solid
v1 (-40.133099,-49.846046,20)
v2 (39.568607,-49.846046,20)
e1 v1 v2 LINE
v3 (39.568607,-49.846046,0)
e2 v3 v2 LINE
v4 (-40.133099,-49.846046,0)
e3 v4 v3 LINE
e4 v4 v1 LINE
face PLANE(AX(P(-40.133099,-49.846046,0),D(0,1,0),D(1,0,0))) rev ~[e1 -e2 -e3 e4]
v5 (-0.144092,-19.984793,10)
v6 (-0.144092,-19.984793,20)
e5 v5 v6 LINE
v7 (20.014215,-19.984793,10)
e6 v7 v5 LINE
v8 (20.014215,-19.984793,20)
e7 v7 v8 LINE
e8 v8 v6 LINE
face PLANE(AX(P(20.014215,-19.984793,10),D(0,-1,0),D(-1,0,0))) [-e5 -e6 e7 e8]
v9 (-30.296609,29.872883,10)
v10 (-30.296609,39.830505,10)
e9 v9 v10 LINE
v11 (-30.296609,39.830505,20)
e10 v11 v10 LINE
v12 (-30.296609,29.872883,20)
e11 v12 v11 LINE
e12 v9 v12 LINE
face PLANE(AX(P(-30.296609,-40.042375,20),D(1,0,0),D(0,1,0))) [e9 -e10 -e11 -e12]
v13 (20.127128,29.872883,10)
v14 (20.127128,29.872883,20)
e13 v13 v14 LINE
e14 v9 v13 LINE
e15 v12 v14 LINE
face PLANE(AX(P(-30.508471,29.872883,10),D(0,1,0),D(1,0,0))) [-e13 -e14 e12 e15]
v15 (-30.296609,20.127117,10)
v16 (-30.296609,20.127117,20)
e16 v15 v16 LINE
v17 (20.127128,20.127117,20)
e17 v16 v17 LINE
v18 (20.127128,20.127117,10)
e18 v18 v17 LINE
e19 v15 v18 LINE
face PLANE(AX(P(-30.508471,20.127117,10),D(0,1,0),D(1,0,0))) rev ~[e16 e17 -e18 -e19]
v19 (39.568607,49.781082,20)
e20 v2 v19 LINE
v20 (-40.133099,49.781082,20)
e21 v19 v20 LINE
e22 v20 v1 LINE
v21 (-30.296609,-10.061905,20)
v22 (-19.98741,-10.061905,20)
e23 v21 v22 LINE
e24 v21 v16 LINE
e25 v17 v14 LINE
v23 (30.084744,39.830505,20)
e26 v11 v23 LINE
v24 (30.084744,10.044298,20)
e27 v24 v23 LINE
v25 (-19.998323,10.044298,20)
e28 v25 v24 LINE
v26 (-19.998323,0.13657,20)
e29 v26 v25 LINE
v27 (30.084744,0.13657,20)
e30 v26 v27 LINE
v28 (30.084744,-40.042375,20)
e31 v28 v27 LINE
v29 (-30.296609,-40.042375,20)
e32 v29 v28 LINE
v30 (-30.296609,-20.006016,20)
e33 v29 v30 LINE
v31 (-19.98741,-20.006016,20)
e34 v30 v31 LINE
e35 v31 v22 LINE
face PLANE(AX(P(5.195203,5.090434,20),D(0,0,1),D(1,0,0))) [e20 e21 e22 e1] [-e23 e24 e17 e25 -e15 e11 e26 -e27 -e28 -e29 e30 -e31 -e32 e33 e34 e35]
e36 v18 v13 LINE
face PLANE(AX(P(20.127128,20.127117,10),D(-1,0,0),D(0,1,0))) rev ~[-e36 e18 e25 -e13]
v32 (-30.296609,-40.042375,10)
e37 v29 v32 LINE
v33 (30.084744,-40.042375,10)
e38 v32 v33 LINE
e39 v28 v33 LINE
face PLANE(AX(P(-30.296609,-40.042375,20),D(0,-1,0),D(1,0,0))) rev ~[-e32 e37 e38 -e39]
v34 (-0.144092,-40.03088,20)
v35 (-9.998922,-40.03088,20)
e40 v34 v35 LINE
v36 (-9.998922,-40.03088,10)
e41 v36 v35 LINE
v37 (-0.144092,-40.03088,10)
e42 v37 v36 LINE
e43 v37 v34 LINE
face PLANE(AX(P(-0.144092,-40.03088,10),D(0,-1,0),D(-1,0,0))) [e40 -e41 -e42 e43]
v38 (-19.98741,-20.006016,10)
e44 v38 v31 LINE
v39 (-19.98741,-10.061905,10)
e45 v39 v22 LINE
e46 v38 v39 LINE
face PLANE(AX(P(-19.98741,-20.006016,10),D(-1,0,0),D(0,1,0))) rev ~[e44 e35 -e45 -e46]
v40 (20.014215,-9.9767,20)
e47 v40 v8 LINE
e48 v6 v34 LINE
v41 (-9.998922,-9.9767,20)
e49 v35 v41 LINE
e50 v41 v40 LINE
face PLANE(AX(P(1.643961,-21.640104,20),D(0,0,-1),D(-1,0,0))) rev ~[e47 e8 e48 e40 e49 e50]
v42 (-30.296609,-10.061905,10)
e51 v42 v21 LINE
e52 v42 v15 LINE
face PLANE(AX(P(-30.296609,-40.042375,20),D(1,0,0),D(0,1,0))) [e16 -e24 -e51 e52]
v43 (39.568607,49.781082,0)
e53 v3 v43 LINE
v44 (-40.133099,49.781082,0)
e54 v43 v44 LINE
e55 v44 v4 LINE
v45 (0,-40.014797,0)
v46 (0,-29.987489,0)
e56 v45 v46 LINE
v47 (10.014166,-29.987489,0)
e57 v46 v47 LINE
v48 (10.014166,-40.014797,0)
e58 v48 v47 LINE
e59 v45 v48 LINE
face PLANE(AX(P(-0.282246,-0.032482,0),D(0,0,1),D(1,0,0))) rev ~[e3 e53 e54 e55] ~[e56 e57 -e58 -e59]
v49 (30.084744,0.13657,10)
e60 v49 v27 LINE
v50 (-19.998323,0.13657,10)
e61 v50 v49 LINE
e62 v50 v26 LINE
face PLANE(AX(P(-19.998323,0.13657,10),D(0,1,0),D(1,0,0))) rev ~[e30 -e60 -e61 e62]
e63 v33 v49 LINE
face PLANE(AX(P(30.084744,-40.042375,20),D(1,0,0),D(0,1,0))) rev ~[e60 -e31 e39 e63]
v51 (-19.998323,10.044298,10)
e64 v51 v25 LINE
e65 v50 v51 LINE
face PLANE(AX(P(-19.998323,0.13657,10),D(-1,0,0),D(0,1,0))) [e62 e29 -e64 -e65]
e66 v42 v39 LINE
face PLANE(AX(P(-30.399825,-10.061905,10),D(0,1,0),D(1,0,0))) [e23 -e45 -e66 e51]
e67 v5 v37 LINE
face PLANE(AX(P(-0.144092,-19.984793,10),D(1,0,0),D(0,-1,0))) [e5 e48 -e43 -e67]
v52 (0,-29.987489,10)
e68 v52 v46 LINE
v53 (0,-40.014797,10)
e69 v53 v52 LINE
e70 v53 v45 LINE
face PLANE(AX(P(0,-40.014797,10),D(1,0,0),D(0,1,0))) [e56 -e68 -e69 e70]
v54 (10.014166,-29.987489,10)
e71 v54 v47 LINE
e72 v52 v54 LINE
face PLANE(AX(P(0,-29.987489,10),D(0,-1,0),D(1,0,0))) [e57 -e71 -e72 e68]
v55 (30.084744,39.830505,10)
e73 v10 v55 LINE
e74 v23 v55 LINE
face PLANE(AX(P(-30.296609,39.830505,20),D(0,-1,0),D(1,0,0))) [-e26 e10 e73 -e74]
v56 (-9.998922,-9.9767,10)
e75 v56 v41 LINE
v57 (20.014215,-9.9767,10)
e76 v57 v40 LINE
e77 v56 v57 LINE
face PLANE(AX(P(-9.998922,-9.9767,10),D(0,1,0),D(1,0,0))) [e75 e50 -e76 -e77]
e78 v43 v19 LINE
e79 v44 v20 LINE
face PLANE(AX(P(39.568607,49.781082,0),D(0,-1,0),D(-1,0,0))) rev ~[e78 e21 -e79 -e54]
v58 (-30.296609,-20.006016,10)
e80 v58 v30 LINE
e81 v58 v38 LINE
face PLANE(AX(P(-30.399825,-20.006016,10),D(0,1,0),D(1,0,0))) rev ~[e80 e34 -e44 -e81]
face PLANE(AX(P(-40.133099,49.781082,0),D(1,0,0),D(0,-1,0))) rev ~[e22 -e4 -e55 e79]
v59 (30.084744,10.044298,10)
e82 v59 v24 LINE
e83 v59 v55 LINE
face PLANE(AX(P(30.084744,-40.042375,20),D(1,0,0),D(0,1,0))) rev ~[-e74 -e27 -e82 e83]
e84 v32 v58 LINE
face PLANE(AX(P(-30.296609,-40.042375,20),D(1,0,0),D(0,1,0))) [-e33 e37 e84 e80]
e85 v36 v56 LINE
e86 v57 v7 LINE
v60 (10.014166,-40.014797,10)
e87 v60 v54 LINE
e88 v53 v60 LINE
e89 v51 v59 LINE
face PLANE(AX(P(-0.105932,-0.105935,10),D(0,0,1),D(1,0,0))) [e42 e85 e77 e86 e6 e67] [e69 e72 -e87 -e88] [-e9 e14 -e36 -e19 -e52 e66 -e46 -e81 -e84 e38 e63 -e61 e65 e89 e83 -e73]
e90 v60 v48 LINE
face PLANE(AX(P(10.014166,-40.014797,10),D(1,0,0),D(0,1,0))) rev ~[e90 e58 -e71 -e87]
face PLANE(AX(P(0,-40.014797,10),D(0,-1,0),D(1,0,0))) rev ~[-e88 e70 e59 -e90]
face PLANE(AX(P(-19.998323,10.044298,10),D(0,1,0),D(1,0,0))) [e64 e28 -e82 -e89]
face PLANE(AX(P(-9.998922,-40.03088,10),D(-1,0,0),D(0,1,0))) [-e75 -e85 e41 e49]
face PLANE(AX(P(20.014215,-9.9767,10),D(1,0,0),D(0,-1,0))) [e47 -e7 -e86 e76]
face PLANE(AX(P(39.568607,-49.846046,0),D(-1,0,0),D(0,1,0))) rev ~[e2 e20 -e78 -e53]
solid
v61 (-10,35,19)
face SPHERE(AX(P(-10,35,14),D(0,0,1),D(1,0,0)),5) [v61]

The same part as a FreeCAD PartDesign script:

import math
import FreeCAD as App
import Part
import Sketcher
Q = App.Units.Quantity

doc = App.newDocument("Part")
params = doc.addObject("Spreadsheet::Sheet", "Params")
for row, (alias, value) in enumerate([
    ("pad1_length", "20 mm"),
    ("pocket1_length", "10 mm"),
    ("pad2_length", "10 mm"),
    ("pad3_length", "10 mm"),
    ("pad4_length", "10 mm"),
    ("pad5_length", "10 mm"),
    ("sketch8_radius", "5 mm"),
    ("revolution_angle", "360 deg"),
], start=1):
    params.set(f"A{row}", alias)
    params.set(f"B{row}", "=" + value)
    params.setAlias(f"B{row}", alias)

body = doc.addObject("PartDesign::Body", "Body")

# Sketch on XY plane
sketch1 = body.newObject("Sketcher::SketchObject", "Sketch")
sketch1.AttachmentSupport = (doc.getObject("XY_Plane"), [""])
sketch1.MapMode = "FlatFace"
sketch1.addGeometry(Part.LineSegment(App.Vector(-40, 50, 0), App.Vector(-40, -50, 0)), False)
sketch1.addGeometry(Part.LineSegment(App.Vector(-40, -50, 0), App.Vector(40, -50, 0)), False)
sketch1.addGeometry(Part.LineSegment(App.Vector(40, -50, 0), App.Vector(40, 50, 0)), False)
sketch1.addGeometry(Part.LineSegment(App.Vector(40, 50, 0), App.Vector(-40, 50, 0)), False)
sketch1.addConstraint(Sketcher.Constraint("Coincident", 0, 2, 1, 1))
sketch1.addConstraint(Sketcher.Constraint("Coincident", 1, 2, 2, 1))
sketch1.addConstraint(Sketcher.Constraint("Coincident", 2, 2, 3, 1))
sketch1.addConstraint(Sketcher.Constraint("Coincident", 3, 2, 0, 1))
sketch1.addConstraint(Sketcher.Constraint("Vertical", 0))
sketch1.addConstraint(Sketcher.Constraint("Horizontal", 1))
sketch1.addConstraint(Sketcher.Constraint("Vertical", 2))
sketch1.addConstraint(Sketcher.Constraint("Horizontal", 3))
sketch1.addConstraint(Sketcher.Constraint("DistanceY", 0, 2, 0, 1, Q("99.627128 mm")))
sketch1.addConstraint(Sketcher.Constraint("DistanceX", 0, 2, -1, 1, Q("40.133099 mm")))
sketch1.addConstraint(Sketcher.Constraint("DistanceX", 1, 1, 1, 2, Q("79.701706 mm")))
sketch1.addConstraint(Sketcher.Constraint("DistanceY", -1, 1, 2, 2, Q("49.781082 mm")))
pad1 = body.newObject("PartDesign::Pad", "Pad")
pad1.Profile = sketch1
pad1.setExpression("Length", "Params.pad1_length")

# Sketch on XY plane
sketch2 = body.newObject("Sketcher::SketchObject", "Sketch001")
sketch2.AttachmentSupport = (doc.getObject("XY_Plane"), [""])
sketch2.MapMode = "FlatFace"
sketch2.AttachmentOffset = App.Placement(App.Vector(0, 0, 20), App.Rotation())
sketch2.addGeometry(Part.LineSegment(App.Vector(-30, 40, 0), App.Vector(-30, -40, 0)), False)
sketch2.addGeometry(Part.LineSegment(App.Vector(-30, -40, 0), App.Vector(30, -40, 0)), False)
sketch2.addGeometry(Part.LineSegment(App.Vector(30, -40, 0), App.Vector(30, 40, 0)), False)
sketch2.addGeometry(Part.LineSegment(App.Vector(30, 40, 0), App.Vector(-30, 40, 0)), False)
sketch2.addConstraint(Sketcher.Constraint("Coincident", 0, 2, 1, 1))
sketch2.addConstraint(Sketcher.Constraint("Coincident", 1, 2, 2, 1))
sketch2.addConstraint(Sketcher.Constraint("Coincident", 2, 2, 3, 1))
sketch2.addConstraint(Sketcher.Constraint("Coincident", 3, 2, 0, 1))
sketch2.addConstraint(Sketcher.Constraint("Vertical", 0))
sketch2.addConstraint(Sketcher.Constraint("Horizontal", 1))
sketch2.addConstraint(Sketcher.Constraint("Vertical", 2))
sketch2.addConstraint(Sketcher.Constraint("Horizontal", 3))
sketch2.addConstraint(Sketcher.Constraint("DistanceY", 0, 2, 0, 1, Q("79.872879 mm")))
sketch2.addConstraint(Sketcher.Constraint("DistanceX", 1, 1, 1, 2, Q("60.381353 mm")))
sketch2.addConstraint(Sketcher.Constraint("DistanceX", 0, 2, -1, 1, Q("30.296609 mm")))
sketch2.addConstraint(Sketcher.Constraint("DistanceY", 0, 2, -1, 1, Q("40.042375 mm")))
pocket1 = body.newObject("PartDesign::Pocket", "Pocket")
pocket1.Profile = sketch2
pocket1.setExpression("Length", "Params.pocket1_length")

# Sketch on XY plane
sketch3 = body.newObject("Sketcher::SketchObject", "Sketch002")
sketch3.AttachmentSupport = (doc.getObject("XY_Plane"), [""])
sketch3.MapMode = "FlatFace"
sketch3.AttachmentOffset = App.Placement(App.Vector(0, 0, 10), App.Rotation())
sketch3.addGeometry(Part.LineSegment(App.Vector(-31, 30, 0), App.Vector(-31, 20, 0)), False)
sketch3.addGeometry(Part.LineSegment(App.Vector(-31, 20, 0), App.Vector(20, 20, 0)), False)
sketch3.addGeometry(Part.LineSegment(App.Vector(20, 20, 0), App.Vector(20, 30, 0)), False)
sketch3.addGeometry(Part.LineSegment(App.Vector(20, 30, 0), App.Vector(-31, 30, 0)), False)
sketch3.addConstraint(Sketcher.Constraint("Coincident", 0, 2, 1, 1))
sketch3.addConstraint(Sketcher.Constraint("Coincident", 1, 2, 2, 1))
sketch3.addConstraint(Sketcher.Constraint("Coincident", 2, 2, 3, 1))
sketch3.addConstraint(Sketcher.Constraint("Coincident", 3, 2, 0, 1))
sketch3.addConstraint(Sketcher.Constraint("Vertical", 0))
sketch3.addConstraint(Sketcher.Constraint("Horizontal", 1))
sketch3.addConstraint(Sketcher.Constraint("Vertical", 2))
sketch3.addConstraint(Sketcher.Constraint("Horizontal", 3))
sketch3.addConstraint(Sketcher.Constraint("DistanceX", 1, 1, 1, 2, Q("50.635599 mm")))
sketch3.addConstraint(Sketcher.Constraint("DistanceY", 0, 2, 0, 1, Q("9.745766 mm")))
sketch3.addConstraint(Sketcher.Constraint("DistanceX", 0, 2, -1, 1, Q("30.508471 mm")))
sketch3.addConstraint(Sketcher.Constraint("DistanceY", -1, 1, 0, 2, Q("20.127117 mm")))
pad2 = body.newObject("PartDesign::Pad", "Pad001")
pad2.Profile = sketch3
pad2.setExpression("Length", "Params.pad2_length")

# Sketch on XY plane
sketch4 = body.newObject("Sketcher::SketchObject", "Sketch003")
sketch4.AttachmentSupport = (doc.getObject("XY_Plane"), [""])
sketch4.MapMode = "FlatFace"
sketch4.AttachmentOffset = App.Placement(App.Vector(0, 0, 10), App.Rotation())
sketch4.addGeometry(Part.LineSegment(App.Vector(-20, 10, 0), App.Vector(-20, 0, 0)), False)
sketch4.addGeometry(Part.LineSegment(App.Vector(-20, 0, 0), App.Vector(30, 0, 0)), False)
sketch4.addGeometry(Part.LineSegment(App.Vector(30, 0, 0), App.Vector(30, 10, 0)), False)
sketch4.addGeometry(Part.LineSegment(App.Vector(30, 10, 0), App.Vector(-20, 10, 0)), False)
sketch4.addConstraint(Sketcher.Constraint("Coincident", 0, 2, 1, 1))
sketch4.addConstraint(Sketcher.Constraint("Coincident", 1, 2, 2, 1))
sketch4.addConstraint(Sketcher.Constraint("Coincident", 2, 2, 3, 1))
sketch4.addConstraint(Sketcher.Constraint("Coincident", 3, 2, 0, 1))
sketch4.addConstraint(Sketcher.Constraint("Vertical", 0))
sketch4.addConstraint(Sketcher.Constraint("Horizontal", 1))
sketch4.addConstraint(Sketcher.Constraint("Vertical", 2))
sketch4.addConstraint(Sketcher.Constraint("Horizontal", 3))
sketch4.addConstraint(Sketcher.Constraint("DistanceX", 1, 1, 1, 2, Q("50.387052 mm")))
sketch4.addConstraint(Sketcher.Constraint("DistanceY", 0, 2, 0, 1, Q("9.907728 mm")))
sketch4.addConstraint(Sketcher.Constraint("DistanceY", -1, 1, 0, 2, Q("0.13657 mm")))
sketch4.addConstraint(Sketcher.Constraint("DistanceX", -1, 1, 1, 2, Q("30.388729 mm")))
pad3 = body.newObject("PartDesign::Pad", "Pad002")
pad3.Profile = sketch4
pad3.setExpression("Length", "Params.pad3_length")

# Sketch on XY plane
sketch5 = body.newObject("Sketcher::SketchObject", "Sketch004")
sketch5.AttachmentSupport = (doc.getObject("XY_Plane"), [""])
sketch5.MapMode = "FlatFace"
sketch5.AttachmentOffset = App.Placement(App.Vector(0, 0, 10), App.Rotation())
sketch5.addGeometry(Part.LineSegment(App.Vector(-30, -10, 0), App.Vector(-30, -20, 0)), False)
sketch5.addGeometry(Part.LineSegment(App.Vector(-30, -20, 0), App.Vector(-20, -20, 0)), False)
sketch5.addGeometry(Part.LineSegment(App.Vector(-20, -20, 0), App.Vector(-20, -10, 0)), False)
sketch5.addGeometry(Part.LineSegment(App.Vector(-20, -10, 0), App.Vector(-30, -10, 0)), False)
sketch5.addConstraint(Sketcher.Constraint("Coincident", 0, 2, 1, 1))
sketch5.addConstraint(Sketcher.Constraint("Coincident", 1, 2, 2, 1))
sketch5.addConstraint(Sketcher.Constraint("Coincident", 2, 2, 3, 1))
sketch5.addConstraint(Sketcher.Constraint("Coincident", 3, 2, 0, 1))
sketch5.addConstraint(Sketcher.Constraint("Vertical", 0))
sketch5.addConstraint(Sketcher.Constraint("Horizontal", 1))
sketch5.addConstraint(Sketcher.Constraint("Vertical", 2))
sketch5.addConstraint(Sketcher.Constraint("Horizontal", 3))
sketch5.addConstraint(Sketcher.Constraint("DistanceY", 0, 2, 0, 1, Q("9.944111 mm")))
sketch5.addConstraint(Sketcher.Constraint("DistanceX", 1, 1, 1, 2, Q("10.412415 mm")))
sketch5.addConstraint(Sketcher.Constraint("DistanceX", 1, 2, -1, 1, Q("19.98741 mm")))
sketch5.addConstraint(Sketcher.Constraint("DistanceY", 0, 2, -1, 1, Q("20.006016 mm")))
pad4 = body.newObject("PartDesign::Pad", "Pad003")
pad4.Profile = sketch5
pad4.setExpression("Length", "Params.pad4_length")

# Sketch on XY plane
sketch6 = body.newObject("Sketcher::SketchObject", "Sketch005")
sketch6.AttachmentSupport = (doc.getObject("XY_Plane"), [""])
sketch6.MapMode = "FlatFace"
sketch6.AttachmentOffset = App.Placement(App.Vector(0, 0, 10), App.Rotation())
sketch6.addGeometry(Part.LineSegment(App.Vector(-10, -10, 0), App.Vector(-10, -40, 0)), False)
sketch6.addGeometry(Part.LineSegment(App.Vector(-10, -40, 0), App.Vector(0, -40, 0)), False)
sketch6.addGeometry(Part.LineSegment(App.Vector(0, -40, 0), App.Vector(0, -20, 0)), False)
sketch6.addGeometry(Part.LineSegment(App.Vector(0, -20, 0), App.Vector(20, -20, 0)), False)
sketch6.addGeometry(Part.LineSegment(App.Vector(20, -20, 0), App.Vector(20, -10, 0)), False)
sketch6.addGeometry(Part.LineSegment(App.Vector(20, -10, 0), App.Vector(-10, -10, 0)), False)
sketch6.addConstraint(Sketcher.Constraint("Coincident", 0, 2, 1, 1))
sketch6.addConstraint(Sketcher.Constraint("Coincident", 1, 2, 2, 1))
sketch6.addConstraint(Sketcher.Constraint("Coincident", 2, 2, 3, 1))
sketch6.addConstraint(Sketcher.Constraint("Coincident", 3, 2, 4, 1))
sketch6.addConstraint(Sketcher.Constraint("Coincident", 4, 2, 5, 1))
sketch6.addConstraint(Sketcher.Constraint("Coincident", 5, 2, 0, 1))
sketch6.addConstraint(Sketcher.Constraint("Vertical", 0))
sketch6.addConstraint(Sketcher.Constraint("Horizontal", 1))
sketch6.addConstraint(Sketcher.Constraint("Vertical", 2))
sketch6.addConstraint(Sketcher.Constraint("Horizontal", 3))
sketch6.addConstraint(Sketcher.Constraint("Vertical", 4))
sketch6.addConstraint(Sketcher.Constraint("Horizontal", 5))
sketch6.addConstraint(Sketcher.Constraint("DistanceX", 1, 1, 1, 2, Q("9.85483 mm")))
sketch6.addConstraint(Sketcher.Constraint("DistanceY", 0, 2, 0, 1, Q("30.05418 mm")))
sketch6.addConstraint(Sketcher.Constraint("DistanceY", 4, 2, -1, 1, Q("9.9767 mm")))
sketch6.addConstraint(Sketcher.Constraint("DistanceX", 3, 1, 3, 2, Q("20.158307 mm")))
sketch6.addConstraint(Sketcher.Constraint("DistanceY", 2, 1, 2, 2, Q("20.046087 mm")))
sketch6.addConstraint(Sketcher.Constraint("DistanceX", 0, 2, -1, 1, Q("9.998922 mm")))
pad5 = body.newObject("PartDesign::Pad", "Pad004")
pad5.Profile = sketch6
pad5.setExpression("Length", "Params.pad5_length")

# Sketch on XY plane
sketch7 = body.newObject("Sketcher::SketchObject", "Sketch006")
sketch7.AttachmentSupport = (doc.getObject("XY_Plane"), [""])
sketch7.MapMode = "FlatFace"
sketch7.AttachmentOffset = App.Placement(App.Vector(0, 0, 10), App.Rotation())
sketch7.addGeometry(Part.LineSegment(App.Vector(0, -30, 0), App.Vector(0, -40, 0)), False)
sketch7.addGeometry(Part.LineSegment(App.Vector(0, -40, 0), App.Vector(10, -40, 0)), False)
sketch7.addGeometry(Part.LineSegment(App.Vector(10, -40, 0), App.Vector(10, -30, 0)), False)
sketch7.addGeometry(Part.LineSegment(App.Vector(10, -30, 0), App.Vector(0, -30, 0)), False)
sketch7.addConstraint(Sketcher.Constraint("Coincident", 0, 2, 1, 1))
sketch7.addConstraint(Sketcher.Constraint("Coincident", 1, 2, 2, 1))
sketch7.addConstraint(Sketcher.Constraint("Coincident", 2, 2, 3, 1))
sketch7.addConstraint(Sketcher.Constraint("Coincident", 3, 2, 0, 1))
sketch7.addConstraint(Sketcher.Constraint("Vertical", 0))
sketch7.addConstraint(Sketcher.Constraint("Horizontal", 1))
sketch7.addConstraint(Sketcher.Constraint("Vertical", 2))
sketch7.addConstraint(Sketcher.Constraint("Horizontal", 3))
sketch7.addConstraint(Sketcher.Constraint("PointOnObject", 0, 2, -2))
sketch7.addConstraint(Sketcher.Constraint("DistanceX", 1, 1, 1, 2, Q("10.014166 mm")))
sketch7.addConstraint(Sketcher.Constraint("DistanceY", 0, 2, 0, 1, Q("10.027307 mm")))
sketch7.addConstraint(Sketcher.Constraint("DistanceY", 2, 2, -1, 1, Q("29.987489 mm")))
pocket2 = body.newObject("PartDesign::Pocket", "Pocket001")
pocket2.Profile = sketch7
pocket2.Type = "ThroughAll"
body2 = doc.addObject("PartDesign::Body", "Body001")

# Sketch on XZ plane
sketch8 = body2.newObject("Sketcher::SketchObject", "Sketch007")
sketch8.AttachmentSupport = (doc.getObject("XZ_Plane001"), [""])
sketch8.MapMode = "FlatFace"
sketch8.AttachmentOffset = App.Placement(App.Vector(0, 0, -35), App.Rotation())
sketch8.addGeometry(Part.ArcOfCircle(Part.Circle(App.Vector(-10, 14, 0), App.Vector(0, 0, 1), 5), math.radians(-90), math.radians(90)), False)
sketch8.addGeometry(Part.LineSegment(App.Vector(-10, 19, 0), App.Vector(-10, 9, 0)), False)
sketch8.addGeometry(Part.LineSegment(App.Vector(-10, 9, 0), App.Vector(-10, 19, 0)), True)  # axis
sketch8.addConstraint(Sketcher.Constraint("Coincident", 0, 1, 1, 2))
sketch8.addConstraint(Sketcher.Constraint("Coincident", 1, 1, 0, 2))
sketch8.addConstraint(Sketcher.Constraint("Vertical", 1))
sketch8.addConstraint(Sketcher.Constraint("Vertical", 2))
sketch8.addConstraint(Sketcher.Constraint("Coincident", 2, 1, 0, 1))
sketch8.addConstraint(Sketcher.Constraint("Equal", 1, 2))
sketch8.addConstraint(Sketcher.Constraint("Radius", 0, Q("5 mm")))
sketch8.addConstraint(Sketcher.Constraint("DistanceX", 0, 3, -1, 1, Q("10 mm")))
sketch8.addConstraint(Sketcher.Constraint("DistanceY", -1, 1, 0, 3, Q("14 mm")))
sketch8.addConstraint(Sketcher.Constraint("DistanceX", 0, 1, -1, 1, Q("10 mm")))
sketch8.setExpression("Constraints[6]", "Params.sketch8_radius")
revolution = body2.newObject("PartDesign::Revolution", "Revolution")
revolution.Profile = sketch8
revolution.ReferenceAxis = (sketch8, ["Axis0"])
revolution.setExpression("Angle", "Params.revolution_angle")

doc.recompute()
